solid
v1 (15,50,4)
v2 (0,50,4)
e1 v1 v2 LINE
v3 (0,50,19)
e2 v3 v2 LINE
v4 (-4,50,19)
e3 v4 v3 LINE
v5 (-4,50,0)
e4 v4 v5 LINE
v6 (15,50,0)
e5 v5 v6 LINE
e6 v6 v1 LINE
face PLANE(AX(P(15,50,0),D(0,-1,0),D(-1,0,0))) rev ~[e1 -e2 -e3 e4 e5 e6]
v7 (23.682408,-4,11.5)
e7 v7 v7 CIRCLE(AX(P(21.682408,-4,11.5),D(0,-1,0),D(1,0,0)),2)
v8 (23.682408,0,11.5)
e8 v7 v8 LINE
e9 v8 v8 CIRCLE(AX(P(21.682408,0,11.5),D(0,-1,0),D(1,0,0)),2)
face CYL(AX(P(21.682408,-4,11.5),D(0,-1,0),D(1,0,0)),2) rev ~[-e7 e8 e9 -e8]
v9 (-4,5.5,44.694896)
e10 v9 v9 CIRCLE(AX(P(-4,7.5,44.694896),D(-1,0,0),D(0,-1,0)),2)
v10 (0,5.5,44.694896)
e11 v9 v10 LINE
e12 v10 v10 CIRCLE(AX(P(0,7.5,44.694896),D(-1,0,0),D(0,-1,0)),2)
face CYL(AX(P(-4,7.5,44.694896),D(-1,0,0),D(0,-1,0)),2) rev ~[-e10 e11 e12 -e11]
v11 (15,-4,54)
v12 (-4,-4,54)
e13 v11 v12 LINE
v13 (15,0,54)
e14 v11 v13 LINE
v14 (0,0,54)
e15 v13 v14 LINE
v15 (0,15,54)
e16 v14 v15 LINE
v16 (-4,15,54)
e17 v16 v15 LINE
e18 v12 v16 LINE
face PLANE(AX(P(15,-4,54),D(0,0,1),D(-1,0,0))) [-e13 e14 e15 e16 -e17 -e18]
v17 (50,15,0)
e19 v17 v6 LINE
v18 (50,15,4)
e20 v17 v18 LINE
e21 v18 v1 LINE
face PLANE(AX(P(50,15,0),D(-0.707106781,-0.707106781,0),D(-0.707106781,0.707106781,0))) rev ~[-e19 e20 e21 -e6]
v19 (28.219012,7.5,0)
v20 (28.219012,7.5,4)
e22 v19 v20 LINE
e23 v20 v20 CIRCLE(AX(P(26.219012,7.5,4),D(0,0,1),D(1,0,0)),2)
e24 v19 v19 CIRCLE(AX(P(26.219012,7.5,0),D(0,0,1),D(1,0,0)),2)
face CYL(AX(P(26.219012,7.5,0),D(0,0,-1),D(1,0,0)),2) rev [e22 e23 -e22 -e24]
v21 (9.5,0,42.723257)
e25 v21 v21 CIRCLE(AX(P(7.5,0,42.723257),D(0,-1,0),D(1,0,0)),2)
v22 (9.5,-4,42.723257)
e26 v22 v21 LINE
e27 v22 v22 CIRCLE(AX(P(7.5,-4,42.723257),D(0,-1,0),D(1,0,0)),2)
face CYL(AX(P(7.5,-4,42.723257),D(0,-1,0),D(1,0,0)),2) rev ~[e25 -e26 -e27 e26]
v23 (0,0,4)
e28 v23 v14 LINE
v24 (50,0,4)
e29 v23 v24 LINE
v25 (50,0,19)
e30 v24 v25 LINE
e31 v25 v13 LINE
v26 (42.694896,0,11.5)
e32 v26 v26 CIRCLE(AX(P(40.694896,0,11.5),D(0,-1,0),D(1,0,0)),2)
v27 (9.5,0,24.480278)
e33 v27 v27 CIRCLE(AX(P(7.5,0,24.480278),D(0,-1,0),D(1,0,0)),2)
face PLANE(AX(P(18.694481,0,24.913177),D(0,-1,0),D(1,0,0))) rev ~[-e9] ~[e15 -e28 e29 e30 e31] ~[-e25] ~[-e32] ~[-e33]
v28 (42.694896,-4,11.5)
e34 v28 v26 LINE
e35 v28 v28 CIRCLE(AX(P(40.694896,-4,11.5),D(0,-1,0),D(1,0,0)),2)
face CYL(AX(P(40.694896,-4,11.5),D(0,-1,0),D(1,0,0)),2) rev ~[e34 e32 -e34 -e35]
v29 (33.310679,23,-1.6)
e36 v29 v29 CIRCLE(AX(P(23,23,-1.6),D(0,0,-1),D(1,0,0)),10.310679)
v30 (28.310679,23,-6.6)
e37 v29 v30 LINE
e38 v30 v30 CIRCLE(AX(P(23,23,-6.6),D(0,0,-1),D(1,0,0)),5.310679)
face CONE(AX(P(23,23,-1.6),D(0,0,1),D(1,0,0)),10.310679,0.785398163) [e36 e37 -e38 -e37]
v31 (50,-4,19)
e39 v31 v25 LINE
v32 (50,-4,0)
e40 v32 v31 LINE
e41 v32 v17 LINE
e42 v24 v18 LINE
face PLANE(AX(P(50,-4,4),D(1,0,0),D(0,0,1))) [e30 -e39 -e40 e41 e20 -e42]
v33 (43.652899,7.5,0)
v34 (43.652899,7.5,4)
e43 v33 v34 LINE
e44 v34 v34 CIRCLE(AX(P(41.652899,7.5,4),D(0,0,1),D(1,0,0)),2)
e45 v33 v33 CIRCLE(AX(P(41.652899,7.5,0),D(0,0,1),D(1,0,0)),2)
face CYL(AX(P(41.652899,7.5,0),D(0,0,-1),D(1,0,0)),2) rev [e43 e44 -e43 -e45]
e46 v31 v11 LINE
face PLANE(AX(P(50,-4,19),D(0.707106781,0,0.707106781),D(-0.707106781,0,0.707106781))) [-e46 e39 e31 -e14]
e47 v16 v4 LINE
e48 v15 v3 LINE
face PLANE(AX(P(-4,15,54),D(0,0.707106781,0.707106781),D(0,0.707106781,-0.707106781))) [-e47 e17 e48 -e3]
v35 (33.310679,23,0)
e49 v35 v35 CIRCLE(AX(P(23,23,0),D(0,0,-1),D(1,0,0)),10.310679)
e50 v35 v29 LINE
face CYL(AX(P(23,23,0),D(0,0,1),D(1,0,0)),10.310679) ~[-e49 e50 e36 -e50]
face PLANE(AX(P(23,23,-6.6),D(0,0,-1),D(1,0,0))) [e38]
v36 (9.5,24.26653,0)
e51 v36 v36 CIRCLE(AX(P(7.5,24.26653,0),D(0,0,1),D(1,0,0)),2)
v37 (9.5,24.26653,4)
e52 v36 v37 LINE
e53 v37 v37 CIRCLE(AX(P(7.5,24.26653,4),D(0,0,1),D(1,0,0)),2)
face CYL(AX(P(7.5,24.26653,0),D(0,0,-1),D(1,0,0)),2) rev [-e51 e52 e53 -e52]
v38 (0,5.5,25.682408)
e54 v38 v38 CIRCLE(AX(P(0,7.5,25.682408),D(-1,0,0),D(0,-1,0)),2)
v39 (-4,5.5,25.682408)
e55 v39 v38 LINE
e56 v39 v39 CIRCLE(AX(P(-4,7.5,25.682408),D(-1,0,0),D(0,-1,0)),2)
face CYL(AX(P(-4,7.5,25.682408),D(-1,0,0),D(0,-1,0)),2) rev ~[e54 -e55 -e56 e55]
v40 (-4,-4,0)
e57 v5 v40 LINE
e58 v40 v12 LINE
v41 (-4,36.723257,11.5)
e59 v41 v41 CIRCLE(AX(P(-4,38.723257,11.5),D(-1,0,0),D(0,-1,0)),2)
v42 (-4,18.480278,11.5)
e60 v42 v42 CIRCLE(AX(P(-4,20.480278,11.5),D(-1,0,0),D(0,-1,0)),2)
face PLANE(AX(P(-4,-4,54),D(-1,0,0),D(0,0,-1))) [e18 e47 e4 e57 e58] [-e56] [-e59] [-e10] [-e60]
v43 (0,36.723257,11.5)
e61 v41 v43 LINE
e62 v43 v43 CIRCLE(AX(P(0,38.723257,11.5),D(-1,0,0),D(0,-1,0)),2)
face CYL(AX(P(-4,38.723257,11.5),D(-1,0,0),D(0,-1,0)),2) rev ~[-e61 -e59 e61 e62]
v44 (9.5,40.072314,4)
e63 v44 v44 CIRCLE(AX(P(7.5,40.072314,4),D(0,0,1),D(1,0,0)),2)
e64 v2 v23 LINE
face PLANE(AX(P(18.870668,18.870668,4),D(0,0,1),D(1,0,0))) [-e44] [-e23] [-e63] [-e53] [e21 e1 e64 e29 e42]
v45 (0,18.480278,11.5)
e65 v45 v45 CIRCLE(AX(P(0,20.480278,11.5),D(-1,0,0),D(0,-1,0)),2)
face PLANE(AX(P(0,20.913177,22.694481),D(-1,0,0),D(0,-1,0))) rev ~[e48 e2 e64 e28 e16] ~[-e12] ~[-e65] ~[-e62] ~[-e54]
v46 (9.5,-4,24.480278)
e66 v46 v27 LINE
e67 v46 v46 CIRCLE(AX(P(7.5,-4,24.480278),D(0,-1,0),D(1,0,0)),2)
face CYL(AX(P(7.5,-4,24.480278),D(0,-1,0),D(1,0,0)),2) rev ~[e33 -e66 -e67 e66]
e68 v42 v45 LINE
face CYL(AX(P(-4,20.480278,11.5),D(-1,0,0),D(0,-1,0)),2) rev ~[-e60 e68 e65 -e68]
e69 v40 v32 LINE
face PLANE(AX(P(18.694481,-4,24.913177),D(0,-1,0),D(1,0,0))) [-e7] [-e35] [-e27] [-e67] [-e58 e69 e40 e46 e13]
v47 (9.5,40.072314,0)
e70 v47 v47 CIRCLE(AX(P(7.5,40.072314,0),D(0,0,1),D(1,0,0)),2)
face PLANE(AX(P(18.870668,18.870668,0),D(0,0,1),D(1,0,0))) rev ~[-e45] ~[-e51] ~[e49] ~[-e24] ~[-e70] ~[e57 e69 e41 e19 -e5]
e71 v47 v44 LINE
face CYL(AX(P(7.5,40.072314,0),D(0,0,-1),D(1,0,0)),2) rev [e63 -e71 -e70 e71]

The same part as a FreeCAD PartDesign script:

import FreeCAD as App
import Part
import Sketcher
from FreeCAD import Vector
Q = App.Units.Quantity


def edges_at(feature, points):
    """Names of the edges that pass closest to the given points."""
    edges = feature.Shape.Edges
    near = lambda p: min(range(len(edges)), key=lambda i: edges[i].distToShape(Part.Vertex(*p))[0])
    return sorted({f"Edge{near(p) + 1}" for p in points})


def add_polygon(sketch, points):
    """Adds a closed chain of lines whose ends are joined by coincident constraints."""
    first, n = sketch.GeometryCount, len(points)
    for a, b in zip(points, points[1:] + points[:1]):
        sketch.addGeometry(Part.LineSegment(App.Vector(*a, 0), App.Vector(*b, 0)), False)
    for i in range(n):
        sketch.addConstraint(Sketcher.Constraint("Coincident", first + i, 2, first + (i + 1) % n, 1))

doc = App.newDocument("Part")
body = doc.addObject("PartDesign::Body", "Body")

sketch1 = body.newObject("Sketcher::SketchObject", "Sketch")
sketch1.AttachmentSupport = (doc.getObject("XY_Plane"), [""])
sketch1.MapMode = "FlatFace"
add_polygon(sketch1, [(15, 50), (-4, 50), (-4, -4), (50, -4), (50, 15)])
sketch1.addGeometry(Part.Circle(Vector(26.2, 7.5, 0), Vector(0, 0, 1), 2), False)
sketch1.addGeometry(Part.Circle(Vector(41.7, 7.5, 0), Vector(0, 0, 1), 2), False)
sketch1.addGeometry(Part.Circle(Vector(7.5, 24.3, 0), Vector(0, 0, 1), 2), False)
sketch1.addGeometry(Part.Circle(Vector(7.5, 40.1, 0), Vector(0, 0, 1), 2), False)
sketch1.addConstraint([
    Sketcher.Constraint("Horizontal", 0),
    Sketcher.Constraint("Vertical", 1),
    Sketcher.Constraint("Horizontal", 2),
    Sketcher.Constraint("Vertical", 3),
    Sketcher.Constraint("Equal", 5, 6),
    Sketcher.Constraint("Equal", 6, 7),
    Sketcher.Constraint("Equal", 7, 8),
    Sketcher.Constraint("Horizontal", 5, 3, 6, 3),
    Sketcher.Constraint("Vertical", 7, 3, 8, 3),
    Sketcher.Constraint("Equal", 2, 1),
    Sketcher.Constraint("Equal", 0, 3),
    Sketcher.Constraint("Diameter", 5, Q("4 mm")),
    Sketcher.Constraint("DistanceX", 0, 2, 0, 1, Q("19 mm")),
    Sketcher.Constraint("DistanceX", 2, 1, 2, 2, Q("54 mm")),
    Sketcher.Constraint("DistanceX", 0, 2, -1, 1, Q("4 mm")),
    Sketcher.Constraint("DistanceY", -1, 1, 0, 2, Q("50 mm")),
    Sketcher.Constraint("DistanceY", -1, 1, 5, 3, Q("7.5 mm")),
    Sketcher.Constraint("DistanceX", -1, 1, 7, 3, Q("7.5 mm")),
    Sketcher.Constraint("DistanceX", -1, 1, 6, 3, Q("41.652899 mm")),
    Sketcher.Constraint("DistanceX", -1, 1, 5, 3, Q("26.219012 mm")),
    Sketcher.Constraint("DistanceY", -1, 1, 7, 3, Q("24.26653 mm")),
    Sketcher.Constraint("DistanceY", -1, 1, 8, 3, Q("40.072314 mm")),
])
pad1 = body.newObject("PartDesign::Pad", "Pad")
pad1.Profile = sketch1
pad1.Length = 4

sketch2 = body.newObject("Sketcher::SketchObject", "Sketch001")
sketch2.AttachmentSupport = (doc.getObject("XZ_Plane"), [""])
sketch2.MapMode = "FlatFace"
sketch2.AttachmentOffset = App.Placement(Vector(0, 0, 4), App.Rotation())
add_polygon(sketch2, [(-4, 54), (-4, 4), (50, 4), (50, 19), (15, 54)])
sketch2.addGeometry(Part.Circle(Vector(21.7, 11.5, 0), Vector(0, 0, 1), 2), False)
sketch2.addGeometry(Part.Circle(Vector(7.5, 24.5, 0), Vector(0, 0, 1), 2), False)
sketch2.addGeometry(Part.Circle(Vector(40.7, 11.5, 0), Vector(0, 0, 1), 2), False)
sketch2.addGeometry(Part.Circle(Vector(7.5, 42.7, 0), Vector(0, 0, 1), 2), False)
sketch2.addConstraint([
    Sketcher.Constraint("Vertical", 0),
    Sketcher.Constraint("Horizontal", 1),
    Sketcher.Constraint("Vertical", 2),
    Sketcher.Constraint("Horizontal", 4),
    Sketcher.Constraint("Equal", 5, 6),
    Sketcher.Constraint("Equal", 6, 7),
    Sketcher.Constraint("Equal", 7, 8),
    Sketcher.Constraint("Horizontal", 5, 3, 7, 3),
    Sketcher.Constraint("Vertical", 6, 3, 8, 3),
    Sketcher.Constraint("Diameter", 5, Q("4 mm")),
    Sketcher.Constraint("DistanceX", 1, 1, 1, 2, Q("54 mm")),
    Sketcher.Constraint("DistanceX", 4, 2, 4, 1, Q("19 mm")),
    Sketcher.Constraint("DistanceY", 0, 2, 0, 1, Q("50 mm")),
    Sketcher.Constraint("DistanceY", 2, 1, 2, 2, Q("15 mm")),
    Sketcher.Constraint("DistanceX", 0, 2, -1, 1, Q("4 mm")),
    Sketcher.Constraint("DistanceY", -1, 1, 0, 2, Q("4 mm")),
    Sketcher.Constraint("DistanceY", -1, 1, 5, 3, Q("11.5 mm")),
    Sketcher.Constraint("DistanceX", -1, 1, 6, 3, Q("7.5 mm")),
    Sketcher.Constraint("DistanceX", 5, 3, 7, 3, Q("19.012488 mm")),
    Sketcher.Constraint("DistanceY", 6, 3, 8, 3, Q("18.242979 mm")),
    Sketcher.Constraint("DistanceX", -1, 1, 5, 3, Q("21.682408 mm")),
    Sketcher.Constraint("DistanceY", -1, 1, 6, 3, Q("24.480278 mm")),
])
pad2 = body.newObject("PartDesign::Pad", "Pad001")
pad2.Profile = sketch2
pad2.Length = 4
pad2.Reversed = True

sketch3 = body.newObject("Sketcher::SketchObject", "Sketch002")
sketch3.AttachmentSupport = (doc.getObject("YZ_Plane"), [""])
sketch3.MapMode = "FlatFace"
sketch3.AttachmentOffset = App.Placement(Vector(0, 0, -4), App.Rotation())
add_polygon(sketch3, [(50, 0), (0, 0), (0, 54), (15, 54), (50, 19)])
sketch3.addGeometry(Part.Circle(Vector(38.7, 11.5, 0), Vector(0, 0, 1), 2), False)
sketch3.addGeometry(Part.Circle(Vector(20.5, 11.5, 0), Vector(0, 0, 1), 2), False)
sketch3.addGeometry(Part.Circle(Vector(7.5, 25.7, 0), Vector(0, 0, 1), 2), False)
sketch3.addGeometry(Part.Circle(Vector(7.5, 44.7, 0), Vector(0, 0, 1), 2), False)
sketch3.addConstraint([
    Sketcher.Constraint("Horizontal", 0),
    Sketcher.Constraint("Vertical", 1),
    Sketcher.Constraint("Horizontal", 2),
    Sketcher.Constraint("Vertical", 4),
    Sketcher.Constraint("Coincident", 0, 2, -1, 1),
    Sketcher.Constraint("Equal", 5, 6),
    Sketcher.Constraint("Equal", 6, 7),
    Sketcher.Constraint("Equal", 7, 8),
    Sketcher.Constraint("Horizontal", 5, 3, 6, 3),
    Sketcher.Constraint("Vertical", 7, 3, 8, 3),
    Sketcher.Constraint("Diameter", 5, Q("4 mm")),
    Sketcher.Constraint("DistanceX", 0, 2, 0, 1, Q("50 mm")),
    Sketcher.Constraint("DistanceX", 2, 1, 2, 2, Q("15 mm")),
    Sketcher.Constraint("DistanceY", 1, 1, 1, 2, Q("54 mm")),
    Sketcher.Constraint("DistanceY", 4, 2, 4, 1, Q("19 mm")),
    Sketcher.Constraint("DistanceY", -1, 1, 5, 3, Q("11.5 mm")),
    Sketcher.Constraint("DistanceX", -1, 1, 7, 3, Q("7.5 mm")),
    Sketcher.Constraint("DistanceX", 6, 3, 5, 3, Q("18.242979 mm")),
    Sketcher.Constraint("DistanceY", 7, 3, 8, 3, Q("19.012488 mm")),
    Sketcher.Constraint("DistanceX", -1, 1, 5, 3, Q("38.723257 mm")),
    Sketcher.Constraint("DistanceY", -1, 1, 7, 3, Q("25.682408 mm")),
])
pad3 = body.newObject("PartDesign::Pad", "Pad002")
pad3.Profile = sketch3
pad3.Length = 4

sketch4 = body.newObject("Sketcher::SketchObject", "Sketch003")
sketch4.AttachmentSupport = (doc.getObject("XY_Plane"), [""])
sketch4.MapMode = "FlatFace"
sketch4.addGeometry(Part.Circle(Vector(23, 23, 0), Vector(0, 0, 1), 10), False)
sketch4.addConstraint([
    Sketcher.Constraint("DistanceX", -1, 1, 0, 3, Q("23 mm")),
    Sketcher.Constraint("DistanceY", -1, 1, 0, 3, Q("23 mm")),
    Sketcher.Constraint("Diameter", 0, Q("20.621358 mm")),
])
pad4 = body.newObject("PartDesign::Pad", "Pad003")
pad4.Profile = sketch4
pad4.Length = 6.6
pad4.Reversed = True
doc.recompute()

chamfer = body.newObject("PartDesign::Chamfer", "Chamfer")
chamfer.Base = (pad4, edges_at(pad4, [(12.689, 23, -6.6)]))
chamfer.Size = 5

doc.recompute()
